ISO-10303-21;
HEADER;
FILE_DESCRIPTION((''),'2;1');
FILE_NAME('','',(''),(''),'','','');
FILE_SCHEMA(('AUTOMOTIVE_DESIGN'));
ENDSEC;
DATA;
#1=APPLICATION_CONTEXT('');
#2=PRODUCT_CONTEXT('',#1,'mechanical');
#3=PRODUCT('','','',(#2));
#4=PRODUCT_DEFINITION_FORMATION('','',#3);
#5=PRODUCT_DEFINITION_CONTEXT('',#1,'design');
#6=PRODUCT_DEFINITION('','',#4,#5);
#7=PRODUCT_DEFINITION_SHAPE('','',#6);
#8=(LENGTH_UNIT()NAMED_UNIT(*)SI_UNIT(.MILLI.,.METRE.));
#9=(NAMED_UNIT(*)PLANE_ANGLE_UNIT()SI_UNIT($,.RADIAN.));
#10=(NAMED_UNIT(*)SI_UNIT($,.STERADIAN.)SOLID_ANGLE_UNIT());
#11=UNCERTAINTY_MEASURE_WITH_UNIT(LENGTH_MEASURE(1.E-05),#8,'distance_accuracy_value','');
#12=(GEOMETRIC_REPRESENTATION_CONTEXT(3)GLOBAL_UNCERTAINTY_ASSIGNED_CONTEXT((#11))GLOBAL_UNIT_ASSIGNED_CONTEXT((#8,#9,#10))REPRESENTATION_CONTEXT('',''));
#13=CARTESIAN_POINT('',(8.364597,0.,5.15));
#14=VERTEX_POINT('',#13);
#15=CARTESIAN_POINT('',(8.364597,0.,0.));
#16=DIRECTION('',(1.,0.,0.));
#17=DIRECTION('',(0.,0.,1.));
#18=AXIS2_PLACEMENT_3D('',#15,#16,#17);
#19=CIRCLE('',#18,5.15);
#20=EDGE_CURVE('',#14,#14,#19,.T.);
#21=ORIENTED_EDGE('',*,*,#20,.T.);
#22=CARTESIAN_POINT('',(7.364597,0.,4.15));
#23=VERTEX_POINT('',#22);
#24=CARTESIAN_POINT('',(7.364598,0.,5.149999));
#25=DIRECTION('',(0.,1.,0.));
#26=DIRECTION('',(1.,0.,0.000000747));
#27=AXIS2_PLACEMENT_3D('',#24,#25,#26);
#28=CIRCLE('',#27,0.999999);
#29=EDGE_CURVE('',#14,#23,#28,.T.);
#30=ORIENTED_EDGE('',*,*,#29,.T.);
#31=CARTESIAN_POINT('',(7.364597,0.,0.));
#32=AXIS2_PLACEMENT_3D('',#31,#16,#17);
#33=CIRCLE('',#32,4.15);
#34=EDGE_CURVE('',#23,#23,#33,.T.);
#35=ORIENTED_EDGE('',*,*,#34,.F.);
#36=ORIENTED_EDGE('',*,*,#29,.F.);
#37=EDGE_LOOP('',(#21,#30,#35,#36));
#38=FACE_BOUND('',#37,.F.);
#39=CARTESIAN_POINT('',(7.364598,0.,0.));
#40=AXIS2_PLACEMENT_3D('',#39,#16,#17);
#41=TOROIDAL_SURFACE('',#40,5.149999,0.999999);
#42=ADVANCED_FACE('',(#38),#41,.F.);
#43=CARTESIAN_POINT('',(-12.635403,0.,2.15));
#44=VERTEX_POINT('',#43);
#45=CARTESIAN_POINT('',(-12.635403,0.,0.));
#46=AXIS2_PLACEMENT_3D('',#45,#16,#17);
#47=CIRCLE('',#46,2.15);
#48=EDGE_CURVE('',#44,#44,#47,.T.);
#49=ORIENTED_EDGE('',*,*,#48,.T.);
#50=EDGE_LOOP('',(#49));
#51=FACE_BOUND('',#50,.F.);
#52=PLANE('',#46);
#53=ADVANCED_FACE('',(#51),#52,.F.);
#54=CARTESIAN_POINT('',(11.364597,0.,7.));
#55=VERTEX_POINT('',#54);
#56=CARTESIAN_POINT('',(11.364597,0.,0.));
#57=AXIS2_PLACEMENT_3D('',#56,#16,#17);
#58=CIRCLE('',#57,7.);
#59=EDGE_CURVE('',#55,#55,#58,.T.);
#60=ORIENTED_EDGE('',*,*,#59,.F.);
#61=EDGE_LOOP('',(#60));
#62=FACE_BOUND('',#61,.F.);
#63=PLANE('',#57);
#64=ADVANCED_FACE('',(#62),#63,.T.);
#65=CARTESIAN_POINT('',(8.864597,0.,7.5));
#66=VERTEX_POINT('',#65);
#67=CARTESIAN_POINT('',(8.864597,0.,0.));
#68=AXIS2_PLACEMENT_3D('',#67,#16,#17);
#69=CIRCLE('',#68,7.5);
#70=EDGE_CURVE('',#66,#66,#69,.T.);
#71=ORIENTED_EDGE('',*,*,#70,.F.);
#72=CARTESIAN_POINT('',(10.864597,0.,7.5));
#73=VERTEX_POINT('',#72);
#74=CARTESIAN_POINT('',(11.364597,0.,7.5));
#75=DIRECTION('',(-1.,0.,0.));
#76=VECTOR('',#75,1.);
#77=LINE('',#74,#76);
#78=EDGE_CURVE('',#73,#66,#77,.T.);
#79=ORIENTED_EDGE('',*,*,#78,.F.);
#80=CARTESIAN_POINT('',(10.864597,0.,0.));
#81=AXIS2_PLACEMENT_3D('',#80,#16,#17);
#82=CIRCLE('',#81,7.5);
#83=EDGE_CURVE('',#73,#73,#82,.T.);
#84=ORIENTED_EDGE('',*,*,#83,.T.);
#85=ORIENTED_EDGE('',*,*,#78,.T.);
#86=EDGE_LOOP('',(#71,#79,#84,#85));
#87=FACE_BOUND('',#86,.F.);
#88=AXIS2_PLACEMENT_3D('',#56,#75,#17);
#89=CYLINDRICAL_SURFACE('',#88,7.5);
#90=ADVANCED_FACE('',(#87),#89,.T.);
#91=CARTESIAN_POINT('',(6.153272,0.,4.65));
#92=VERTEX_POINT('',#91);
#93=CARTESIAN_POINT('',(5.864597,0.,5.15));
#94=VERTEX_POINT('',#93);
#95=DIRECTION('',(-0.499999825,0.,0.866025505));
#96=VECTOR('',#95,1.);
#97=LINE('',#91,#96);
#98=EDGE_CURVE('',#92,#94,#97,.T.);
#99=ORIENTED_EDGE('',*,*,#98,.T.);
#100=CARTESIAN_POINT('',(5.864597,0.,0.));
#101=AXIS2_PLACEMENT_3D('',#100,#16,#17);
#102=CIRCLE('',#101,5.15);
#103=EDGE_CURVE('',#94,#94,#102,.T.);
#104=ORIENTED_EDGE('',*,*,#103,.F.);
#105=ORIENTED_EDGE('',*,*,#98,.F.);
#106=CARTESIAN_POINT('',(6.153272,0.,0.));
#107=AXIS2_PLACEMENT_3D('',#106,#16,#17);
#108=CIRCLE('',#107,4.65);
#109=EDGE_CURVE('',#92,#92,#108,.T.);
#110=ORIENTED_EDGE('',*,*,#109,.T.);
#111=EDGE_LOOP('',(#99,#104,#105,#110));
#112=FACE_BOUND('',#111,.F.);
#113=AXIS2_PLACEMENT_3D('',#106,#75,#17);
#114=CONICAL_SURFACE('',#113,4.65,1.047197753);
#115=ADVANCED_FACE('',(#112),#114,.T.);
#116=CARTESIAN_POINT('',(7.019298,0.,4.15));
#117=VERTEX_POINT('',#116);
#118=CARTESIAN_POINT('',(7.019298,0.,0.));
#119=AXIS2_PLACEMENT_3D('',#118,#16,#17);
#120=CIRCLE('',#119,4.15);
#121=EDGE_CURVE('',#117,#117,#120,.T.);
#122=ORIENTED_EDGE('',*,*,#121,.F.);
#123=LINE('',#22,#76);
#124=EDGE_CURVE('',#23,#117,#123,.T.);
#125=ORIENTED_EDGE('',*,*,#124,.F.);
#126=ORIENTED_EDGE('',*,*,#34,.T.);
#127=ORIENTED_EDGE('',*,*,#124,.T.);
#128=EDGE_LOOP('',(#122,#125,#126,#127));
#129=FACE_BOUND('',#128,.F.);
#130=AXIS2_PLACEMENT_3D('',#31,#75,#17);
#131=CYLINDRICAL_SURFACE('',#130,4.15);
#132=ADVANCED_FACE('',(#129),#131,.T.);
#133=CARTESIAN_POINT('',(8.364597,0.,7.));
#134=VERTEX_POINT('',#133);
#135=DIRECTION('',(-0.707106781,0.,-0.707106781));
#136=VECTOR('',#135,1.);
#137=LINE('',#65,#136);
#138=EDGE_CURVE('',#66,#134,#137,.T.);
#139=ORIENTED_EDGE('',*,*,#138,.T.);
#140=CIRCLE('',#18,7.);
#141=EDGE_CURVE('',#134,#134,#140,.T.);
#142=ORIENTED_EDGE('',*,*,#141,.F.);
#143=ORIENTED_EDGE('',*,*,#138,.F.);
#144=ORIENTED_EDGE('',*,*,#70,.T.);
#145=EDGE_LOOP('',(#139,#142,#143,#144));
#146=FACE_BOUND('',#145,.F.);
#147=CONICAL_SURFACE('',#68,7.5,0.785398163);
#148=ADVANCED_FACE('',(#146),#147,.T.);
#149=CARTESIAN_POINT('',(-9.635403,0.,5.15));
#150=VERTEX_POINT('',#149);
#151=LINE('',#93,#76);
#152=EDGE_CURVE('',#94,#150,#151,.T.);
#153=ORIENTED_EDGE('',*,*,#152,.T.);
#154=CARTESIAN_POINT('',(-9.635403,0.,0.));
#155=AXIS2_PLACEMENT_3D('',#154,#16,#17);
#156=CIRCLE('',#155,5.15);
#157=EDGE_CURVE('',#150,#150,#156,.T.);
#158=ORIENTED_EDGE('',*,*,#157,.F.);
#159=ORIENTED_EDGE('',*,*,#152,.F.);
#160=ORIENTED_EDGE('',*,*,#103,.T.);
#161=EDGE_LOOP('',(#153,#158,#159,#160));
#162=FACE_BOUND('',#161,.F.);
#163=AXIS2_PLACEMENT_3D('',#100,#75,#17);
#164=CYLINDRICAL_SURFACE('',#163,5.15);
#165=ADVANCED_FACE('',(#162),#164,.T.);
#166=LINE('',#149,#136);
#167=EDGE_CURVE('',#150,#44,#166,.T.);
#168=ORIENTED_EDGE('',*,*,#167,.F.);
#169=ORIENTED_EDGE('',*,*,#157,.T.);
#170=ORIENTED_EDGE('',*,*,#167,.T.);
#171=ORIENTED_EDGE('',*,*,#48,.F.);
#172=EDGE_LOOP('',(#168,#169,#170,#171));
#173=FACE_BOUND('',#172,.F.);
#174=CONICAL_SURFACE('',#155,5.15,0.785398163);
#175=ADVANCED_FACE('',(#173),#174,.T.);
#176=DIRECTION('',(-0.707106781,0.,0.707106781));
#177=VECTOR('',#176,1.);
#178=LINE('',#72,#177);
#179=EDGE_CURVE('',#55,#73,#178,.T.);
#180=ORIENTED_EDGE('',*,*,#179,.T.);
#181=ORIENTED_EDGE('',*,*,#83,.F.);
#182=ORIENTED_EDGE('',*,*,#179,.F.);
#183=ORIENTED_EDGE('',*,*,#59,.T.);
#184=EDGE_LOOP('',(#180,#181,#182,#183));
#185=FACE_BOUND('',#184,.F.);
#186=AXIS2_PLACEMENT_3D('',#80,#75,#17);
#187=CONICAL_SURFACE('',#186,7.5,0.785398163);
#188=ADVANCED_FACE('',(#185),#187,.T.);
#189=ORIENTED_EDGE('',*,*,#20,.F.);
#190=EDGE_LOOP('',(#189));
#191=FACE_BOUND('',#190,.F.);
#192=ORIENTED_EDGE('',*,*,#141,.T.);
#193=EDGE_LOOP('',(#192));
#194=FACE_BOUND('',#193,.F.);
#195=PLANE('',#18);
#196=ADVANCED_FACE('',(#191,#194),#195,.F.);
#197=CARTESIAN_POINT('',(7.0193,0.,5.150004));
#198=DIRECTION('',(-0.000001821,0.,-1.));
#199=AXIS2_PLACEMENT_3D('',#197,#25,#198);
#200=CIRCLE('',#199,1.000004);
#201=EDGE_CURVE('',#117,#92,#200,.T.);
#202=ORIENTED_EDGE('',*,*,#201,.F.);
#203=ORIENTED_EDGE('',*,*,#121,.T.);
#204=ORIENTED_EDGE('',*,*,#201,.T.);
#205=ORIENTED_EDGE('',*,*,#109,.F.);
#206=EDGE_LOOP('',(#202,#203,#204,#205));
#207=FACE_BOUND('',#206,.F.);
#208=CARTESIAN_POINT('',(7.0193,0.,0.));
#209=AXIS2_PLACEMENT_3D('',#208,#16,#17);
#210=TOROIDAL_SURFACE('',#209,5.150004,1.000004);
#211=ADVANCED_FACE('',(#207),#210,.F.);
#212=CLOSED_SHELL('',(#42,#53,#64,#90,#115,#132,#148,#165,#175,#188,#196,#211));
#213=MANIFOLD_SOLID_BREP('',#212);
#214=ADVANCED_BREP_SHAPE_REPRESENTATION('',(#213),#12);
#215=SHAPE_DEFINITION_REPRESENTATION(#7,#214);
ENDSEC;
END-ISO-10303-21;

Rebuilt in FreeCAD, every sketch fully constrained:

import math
import FreeCAD as App
import Part
import Sketcher

V = App.Vector
Q = App.Units.Quantity


def edges_at(feature, points):
    """Names of the edges that pass closest to the given points."""
    edges = feature.Shape.Edges
    near = lambda p: min(range(len(edges)), key=lambda i: edges[i].distToShape(Part.Vertex(*p))[0])
    return sorted({f"Edge{near(p) + 1}" for p in points})

doc = App.newDocument("Part")
body = doc.addObject("PartDesign::Body", "Body")

# Sketch on XZ plane
sketch1 = body.newObject("Sketcher::SketchObject", "Sketch")
sketch1.AttachmentSupport = (doc.getObject("XZ_Plane"), [""])
sketch1.MapMode = "FlatFace"
sketch1.addGeometry([
    Part.LineSegment(V(-12.64, 5.15, 0), V(-12.64, 0, 0)),  # 0
    Part.LineSegment(V(-12.64, 0, 0), V(11.36, 0, 0)),  # 1
    Part.LineSegment(V(11.36, 0, 0), V(11.36, 7.5, 0)),  # 2
    Part.LineSegment(V(11.36, 7.5, 0), V(8.36, 7.5, 0)),  # 3
    Part.LineSegment(V(8.36, 7.5, 0), V(8.36, 5.15, 0)),  # 4
    Part.ArcOfCircle(Part.Circle(V(7.36, 5.15, 0), V(0, 0, 1), 1), math.radians(-90), math.radians(0)),  # 5
    Part.LineSegment(V(7.36, 4.15, 0), V(7.02, 4.15, 0)),  # 6
    Part.ArcOfCircle(Part.Circle(V(7.02, 5.15, 0), V(0, 0, 1), 1), math.radians(-150), math.radians(-90)),  # 7
    Part.LineSegment(V(6.15, 4.65, 0), V(5.86, 5.15, 0)),  # 8
    Part.LineSegment(V(5.86, 5.15, 0), V(-12.64, 5.15, 0)),  # 9
], False)
sketch1.addConstraint([
    Sketcher.Constraint("Coincident", 0, 2, 1, 1),
    Sketcher.Constraint("Coincident", 1, 2, 2, 1),
    Sketcher.Constraint("Coincident", 2, 2, 3, 1),
    Sketcher.Constraint("Coincident", 3, 2, 4, 1),
    Sketcher.Constraint("Tangent", 4, 2, 5, 2),
    Sketcher.Constraint("Tangent", 5, 1, 6, 1),
    Sketcher.Constraint("Tangent", 6, 2, 7, 2),
    Sketcher.Constraint("Coincident", 7, 1, 8, 1),
    Sketcher.Constraint("Coincident", 8, 2, 9, 1),
    Sketcher.Constraint("Coincident", 9, 2, 0, 1),
    Sketcher.Constraint("Vertical", 0),
    Sketcher.Constraint("Horizontal", 1),
    Sketcher.Constraint("Vertical", 2),
    Sketcher.Constraint("Horizontal", 3),
    Sketcher.Constraint("Vertical", 4),
    Sketcher.Constraint("Horizontal", 6),
    Sketcher.Constraint("Horizontal", 9),
    Sketcher.Constraint("PointOnObject", 0, 2, -1),
    Sketcher.Constraint("Horizontal", 4, 2, 8, 2),
    Sketcher.Constraint("Radius", 5, Q("0.999999 mm")),
    Sketcher.Constraint("DistanceX", 1, 1, 1, 2, Q("24 mm")),
    Sketcher.Constraint("DistanceX", 3, 2, 3, 1, Q("3 mm")),
    Sketcher.Constraint("Angle", 8, Q("119.999988 deg")),
    Sketcher.Constraint("DistanceX", 9, 2, 9, 1, Q("18.5 mm")),
    Sketcher.Constraint("DistanceY", 2, 1, 2, 2, Q("7.5 mm")),
    Sketcher.Constraint("DistanceY", 0, 2, 0, 1, Q("5.15 mm")),
    Sketcher.Constraint("DistanceY", 6, 2, 7, 1, Q("0.5 mm")),
    Sketcher.Constraint("DistanceX", 6, 2, 6, 1, Q("0.345299 mm")),
    Sketcher.Constraint("DistanceX", -1, 1, 7, 3, Q("7.0193 mm")),
])
revolution = body.newObject("PartDesign::Revolution", "Revolution")
revolution.Profile = sketch1
revolution.ReferenceAxis = (sketch1, ["H_Axis"])
revolution.Angle = 360
doc.recompute()

chamfer = body.newObject("PartDesign::Chamfer", "Chamfer")
chamfer.Base = (revolution, edges_at(revolution, [(11.365, 0, -7.5), (8.365, 0, -7.5)]))
chamfer.Size = 0.5
doc.recompute()

chamfer2 = body.newObject("PartDesign::Chamfer", "Chamfer001")
chamfer2.Base = (chamfer, edges_at(chamfer, [(-12.635, 0, -5.15)]))
chamfer2.Size = 3

doc.recompute()
